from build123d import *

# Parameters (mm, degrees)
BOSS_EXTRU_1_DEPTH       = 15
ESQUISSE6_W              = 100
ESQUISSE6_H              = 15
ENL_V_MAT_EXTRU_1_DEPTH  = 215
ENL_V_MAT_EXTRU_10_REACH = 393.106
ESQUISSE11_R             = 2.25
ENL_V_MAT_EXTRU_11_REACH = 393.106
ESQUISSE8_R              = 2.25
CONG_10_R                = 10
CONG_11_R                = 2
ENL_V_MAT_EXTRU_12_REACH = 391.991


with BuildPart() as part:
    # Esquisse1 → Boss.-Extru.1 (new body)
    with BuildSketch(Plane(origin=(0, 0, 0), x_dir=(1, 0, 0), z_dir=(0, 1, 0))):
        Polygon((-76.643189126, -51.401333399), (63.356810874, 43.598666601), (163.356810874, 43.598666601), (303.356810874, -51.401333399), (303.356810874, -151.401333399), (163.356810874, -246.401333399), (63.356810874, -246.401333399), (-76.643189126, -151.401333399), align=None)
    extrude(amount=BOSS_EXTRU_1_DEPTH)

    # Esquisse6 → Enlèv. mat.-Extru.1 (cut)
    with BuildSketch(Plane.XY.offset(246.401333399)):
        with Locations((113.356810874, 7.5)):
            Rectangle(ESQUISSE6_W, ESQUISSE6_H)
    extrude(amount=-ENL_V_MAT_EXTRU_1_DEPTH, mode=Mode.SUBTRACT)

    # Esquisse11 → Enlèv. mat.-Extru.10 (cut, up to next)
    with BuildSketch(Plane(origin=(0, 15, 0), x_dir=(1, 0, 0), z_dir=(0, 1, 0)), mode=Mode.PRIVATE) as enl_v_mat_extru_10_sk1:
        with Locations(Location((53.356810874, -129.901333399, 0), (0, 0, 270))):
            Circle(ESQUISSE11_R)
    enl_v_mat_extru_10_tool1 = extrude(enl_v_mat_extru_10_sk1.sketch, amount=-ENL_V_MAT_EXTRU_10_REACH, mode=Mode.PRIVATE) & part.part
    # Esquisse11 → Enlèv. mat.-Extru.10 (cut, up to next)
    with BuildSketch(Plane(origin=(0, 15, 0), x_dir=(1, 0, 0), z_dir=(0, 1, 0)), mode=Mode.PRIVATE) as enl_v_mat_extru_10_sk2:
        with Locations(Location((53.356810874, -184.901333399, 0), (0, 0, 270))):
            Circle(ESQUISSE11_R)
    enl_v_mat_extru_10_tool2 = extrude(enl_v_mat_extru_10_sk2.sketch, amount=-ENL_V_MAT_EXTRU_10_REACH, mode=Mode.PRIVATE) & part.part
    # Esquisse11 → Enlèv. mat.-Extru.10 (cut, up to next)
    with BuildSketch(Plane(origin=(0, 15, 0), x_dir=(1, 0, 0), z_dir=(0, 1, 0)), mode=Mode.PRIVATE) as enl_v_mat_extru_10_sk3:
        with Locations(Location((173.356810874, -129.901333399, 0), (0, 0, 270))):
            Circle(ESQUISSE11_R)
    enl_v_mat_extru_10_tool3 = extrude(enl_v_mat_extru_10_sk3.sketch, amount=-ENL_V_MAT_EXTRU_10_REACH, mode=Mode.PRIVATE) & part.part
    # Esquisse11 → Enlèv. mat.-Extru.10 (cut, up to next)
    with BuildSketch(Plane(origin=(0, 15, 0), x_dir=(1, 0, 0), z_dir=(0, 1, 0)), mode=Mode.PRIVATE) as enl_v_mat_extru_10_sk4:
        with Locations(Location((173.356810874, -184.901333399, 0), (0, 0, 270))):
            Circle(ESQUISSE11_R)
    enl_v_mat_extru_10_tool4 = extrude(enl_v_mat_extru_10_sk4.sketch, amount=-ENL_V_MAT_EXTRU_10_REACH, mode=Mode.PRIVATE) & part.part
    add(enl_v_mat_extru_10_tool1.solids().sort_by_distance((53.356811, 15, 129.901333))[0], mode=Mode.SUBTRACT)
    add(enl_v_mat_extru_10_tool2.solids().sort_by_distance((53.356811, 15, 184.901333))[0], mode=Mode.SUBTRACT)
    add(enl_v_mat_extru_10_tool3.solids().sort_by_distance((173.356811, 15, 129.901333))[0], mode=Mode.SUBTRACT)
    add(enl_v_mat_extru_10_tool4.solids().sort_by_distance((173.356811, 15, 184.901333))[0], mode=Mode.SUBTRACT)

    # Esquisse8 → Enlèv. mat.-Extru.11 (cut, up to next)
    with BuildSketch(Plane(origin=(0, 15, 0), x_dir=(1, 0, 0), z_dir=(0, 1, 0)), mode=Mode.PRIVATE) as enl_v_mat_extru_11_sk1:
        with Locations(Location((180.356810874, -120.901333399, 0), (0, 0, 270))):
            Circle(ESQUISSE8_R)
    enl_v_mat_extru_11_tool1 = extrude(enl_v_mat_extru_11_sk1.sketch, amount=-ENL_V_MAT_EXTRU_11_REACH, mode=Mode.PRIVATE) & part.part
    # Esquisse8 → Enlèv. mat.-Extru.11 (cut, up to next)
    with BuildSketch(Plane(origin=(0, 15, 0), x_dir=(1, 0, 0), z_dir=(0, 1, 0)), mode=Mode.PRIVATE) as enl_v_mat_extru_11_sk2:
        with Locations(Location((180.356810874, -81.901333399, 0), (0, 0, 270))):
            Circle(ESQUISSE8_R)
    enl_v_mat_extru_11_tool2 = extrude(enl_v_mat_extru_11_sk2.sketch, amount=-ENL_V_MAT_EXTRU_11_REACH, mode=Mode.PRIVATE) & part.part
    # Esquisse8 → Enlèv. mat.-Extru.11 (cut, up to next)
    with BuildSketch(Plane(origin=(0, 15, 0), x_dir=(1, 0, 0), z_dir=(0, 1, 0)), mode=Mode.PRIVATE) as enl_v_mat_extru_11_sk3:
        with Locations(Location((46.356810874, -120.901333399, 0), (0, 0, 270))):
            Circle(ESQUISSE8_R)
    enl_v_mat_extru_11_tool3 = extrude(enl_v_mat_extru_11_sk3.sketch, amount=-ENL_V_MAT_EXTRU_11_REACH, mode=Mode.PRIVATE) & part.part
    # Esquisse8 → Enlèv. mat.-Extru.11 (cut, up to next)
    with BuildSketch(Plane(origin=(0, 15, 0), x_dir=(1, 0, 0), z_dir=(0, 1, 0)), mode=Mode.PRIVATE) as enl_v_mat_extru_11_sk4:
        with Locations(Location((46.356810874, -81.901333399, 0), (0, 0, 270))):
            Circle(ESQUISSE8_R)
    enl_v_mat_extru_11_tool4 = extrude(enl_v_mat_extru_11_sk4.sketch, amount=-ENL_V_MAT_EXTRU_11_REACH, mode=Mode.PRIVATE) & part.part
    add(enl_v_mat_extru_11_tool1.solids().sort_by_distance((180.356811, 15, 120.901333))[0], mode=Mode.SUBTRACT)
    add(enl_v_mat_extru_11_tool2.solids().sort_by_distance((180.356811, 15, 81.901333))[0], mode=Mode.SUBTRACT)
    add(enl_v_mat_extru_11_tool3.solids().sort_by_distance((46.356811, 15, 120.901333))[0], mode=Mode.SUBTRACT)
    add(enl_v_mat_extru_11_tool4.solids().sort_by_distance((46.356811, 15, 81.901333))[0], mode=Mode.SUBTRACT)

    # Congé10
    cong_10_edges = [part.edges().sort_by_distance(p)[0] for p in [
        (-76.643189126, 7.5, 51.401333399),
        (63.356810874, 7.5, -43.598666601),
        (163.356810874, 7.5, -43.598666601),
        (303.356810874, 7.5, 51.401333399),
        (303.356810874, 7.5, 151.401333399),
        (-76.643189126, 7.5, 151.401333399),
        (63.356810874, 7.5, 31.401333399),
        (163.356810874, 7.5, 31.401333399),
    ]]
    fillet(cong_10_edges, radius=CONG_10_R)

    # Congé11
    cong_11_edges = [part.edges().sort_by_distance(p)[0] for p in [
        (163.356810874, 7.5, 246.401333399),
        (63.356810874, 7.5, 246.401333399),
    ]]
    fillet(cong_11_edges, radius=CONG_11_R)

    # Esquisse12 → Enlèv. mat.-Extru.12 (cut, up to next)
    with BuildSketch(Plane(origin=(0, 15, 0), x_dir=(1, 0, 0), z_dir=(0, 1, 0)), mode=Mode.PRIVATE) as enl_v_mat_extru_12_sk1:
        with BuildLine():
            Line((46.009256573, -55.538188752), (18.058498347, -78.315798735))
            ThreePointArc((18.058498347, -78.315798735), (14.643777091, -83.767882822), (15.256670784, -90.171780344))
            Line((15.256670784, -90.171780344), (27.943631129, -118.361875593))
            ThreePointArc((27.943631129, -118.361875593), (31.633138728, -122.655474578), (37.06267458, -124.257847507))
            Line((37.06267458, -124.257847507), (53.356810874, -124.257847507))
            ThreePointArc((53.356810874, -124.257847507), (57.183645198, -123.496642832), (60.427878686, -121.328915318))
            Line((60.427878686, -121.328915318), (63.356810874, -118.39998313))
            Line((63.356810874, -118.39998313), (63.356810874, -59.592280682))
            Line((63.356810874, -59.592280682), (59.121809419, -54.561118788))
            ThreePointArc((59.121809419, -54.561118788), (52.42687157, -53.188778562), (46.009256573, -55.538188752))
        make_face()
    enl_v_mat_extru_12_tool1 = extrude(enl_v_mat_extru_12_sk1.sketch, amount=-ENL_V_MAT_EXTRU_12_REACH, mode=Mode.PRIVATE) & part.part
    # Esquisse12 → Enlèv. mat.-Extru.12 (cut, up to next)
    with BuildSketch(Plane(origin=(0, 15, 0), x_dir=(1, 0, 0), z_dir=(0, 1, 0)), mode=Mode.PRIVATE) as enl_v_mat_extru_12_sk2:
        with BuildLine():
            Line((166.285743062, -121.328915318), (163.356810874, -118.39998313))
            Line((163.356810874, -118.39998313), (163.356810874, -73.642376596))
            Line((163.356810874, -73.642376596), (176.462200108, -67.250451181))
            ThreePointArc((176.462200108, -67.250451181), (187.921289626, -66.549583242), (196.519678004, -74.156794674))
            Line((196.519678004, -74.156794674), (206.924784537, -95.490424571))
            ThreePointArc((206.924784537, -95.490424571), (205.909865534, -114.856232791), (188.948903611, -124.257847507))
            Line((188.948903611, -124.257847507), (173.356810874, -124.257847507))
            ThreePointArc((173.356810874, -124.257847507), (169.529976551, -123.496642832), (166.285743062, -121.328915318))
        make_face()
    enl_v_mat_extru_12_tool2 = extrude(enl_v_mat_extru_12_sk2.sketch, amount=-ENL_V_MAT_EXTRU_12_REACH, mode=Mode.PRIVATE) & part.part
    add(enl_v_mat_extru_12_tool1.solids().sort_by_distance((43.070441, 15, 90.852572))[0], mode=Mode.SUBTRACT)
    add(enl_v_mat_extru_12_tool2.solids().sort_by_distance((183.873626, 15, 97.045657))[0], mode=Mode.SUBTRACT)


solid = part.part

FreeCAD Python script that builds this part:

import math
import FreeCAD as App
import Part
import Sketcher
Q = App.Units.Quantity


def edges_at(feature, points):
    """Names of the edges that pass closest to the given points."""
    edges = feature.Shape.Edges
    near = lambda p: min(range(len(edges)), key=lambda i: edges[i].distToShape(Part.Vertex(*p))[0])
    return sorted({f"Edge{near(p) + 1}" for p in points})

doc = App.newDocument("Part")
params = doc.addObject("Spreadsheet::Sheet", "Params")
for row, (alias, value) in enumerate([
    ("sketch1_width", "100 mm"),
    ("pad1_length", "15 mm"),
    ("sketch2_width", "100 mm"),
    ("sketch2_height", "15 mm"),
    ("pocket1_length", "215 mm"),
    ("sketch3_diameter", "4.5 mm"),
    ("sketch4_diameter", "4.5 mm"),
    ("sketch5_diameter", "4.5 mm"),
    ("sketch6_diameter", "4.5 mm"),
    ("sketch7_diameter", "4.5 mm"),
    ("sketch8_diameter", "4.5 mm"),
    ("sketch9_diameter", "4.5 mm"),
    ("sketch10_diameter", "4.5 mm"),
    ("fillet_radius", "10 mm"),
    ("fillet2_radius", "2 mm"),
    ("sketch11_radius", "10 mm"),
    ("sketch11_radius2", "10 mm"),
    ("sketch11_radius3", "10 mm"),
    ("sketch12_radius", "10 mm"),
    ("sketch12_radius2", "20 mm"),
    ("sketch12_radius3", "15 mm"),
], start=1):
    params.set(f"A{row}", alias)
    params.set(f"B{row}", "=" + value)
    params.setAlias(f"B{row}", alias)

body = doc.addObject("PartDesign::Body", "Body")

sketch1 = body.newObject("Sketcher::SketchObject", "Sketch")
sketch1.AttachmentSupport = (doc.getObject("XZ_Plane"), [""])
sketch1.MapMode = "FlatFace"
sketch1.addGeometry(Part.LineSegment(App.Vector(63, -44, 0), App.Vector(-77, 51, 0)), False)
sketch1.addGeometry(Part.LineSegment(App.Vector(-77, 51, 0), App.Vector(-77, 151, 0)), False)
sketch1.addGeometry(Part.LineSegment(App.Vector(-77, 151, 0), App.Vector(63, 246, 0)), False)
sketch1.addGeometry(Part.LineSegment(App.Vector(63, 246, 0), App.Vector(163, 246, 0)), False)
sketch1.addGeometry(Part.LineSegment(App.Vector(163, 246, 0), App.Vector(303, 151, 0)), False)
sketch1.addGeometry(Part.LineSegment(App.Vector(303, 151, 0), App.Vector(303, 51, 0)), False)
sketch1.addGeometry(Part.LineSegment(App.Vector(303, 51, 0), App.Vector(163, -44, 0)), False)
sketch1.addGeometry(Part.LineSegment(App.Vector(163, -44, 0), App.Vector(63, -44, 0)), False)
sketch1.addConstraint(Sketcher.Constraint("Coincident", 0, 2, 1, 1))
sketch1.addConstraint(Sketcher.Constraint("Coincident", 1, 2, 2, 1))
sketch1.addConstraint(Sketcher.Constraint("Coincident", 2, 2, 3, 1))
sketch1.addConstraint(Sketcher.Constraint("Coincident", 3, 2, 4, 1))
sketch1.addConstraint(Sketcher.Constraint("Coincident", 4, 2, 5, 1))
sketch1.addConstraint(Sketcher.Constraint("Coincident", 5, 2, 6, 1))
sketch1.addConstraint(Sketcher.Constraint("Coincident", 6, 2, 7, 1))
sketch1.addConstraint(Sketcher.Constraint("Coincident", 7, 2, 0, 1))
sketch1.addConstraint(Sketcher.Constraint("Vertical", 1))
sketch1.addConstraint(Sketcher.Constraint("Horizontal", 3))
sketch1.addConstraint(Sketcher.Constraint("Vertical", 5))
sketch1.addConstraint(Sketcher.Constraint("Horizontal", 7))
sketch1.addConstraint(Sketcher.Constraint("Parallel", 0, 4))
sketch1.addConstraint(Sketcher.Constraint("Parallel", 2, 6))
sketch1.addConstraint(Sketcher.Constraint("Horizontal", 1, 2, 4, 2))
sketch1.addConstraint(Sketcher.Constraint("Horizontal", 0, 2, 5, 2))
sketch1.addConstraint(Sketcher.Constraint("Vertical", 3, 2, 6, 2))
sketch1.addConstraint(Sketcher.Constraint("Vertical", 2, 2, 7, 2))
sketch1.addConstraint(Sketcher.Constraint("Equal", 7, 1))
sketch1.addConstraint(Sketcher.Constraint("DistanceX", 3, 1, 3, 2, 100.0))
sketch1.addConstraint(Sketcher.Constraint("DistanceX", 1, 2, 2, 2, 140.0))
sketch1.addConstraint(Sketcher.Constraint("DistanceY", 1, 2, 2, 2, 95.0))
sketch1.addConstraint(Sketcher.Constraint("DistanceX", 0, 2, -1, 1, 76.643189))
sketch1.addConstraint(Sketcher.Constraint("DistanceY", -1, 1, 0, 2, 51.401333))
sketch1.setExpression("Constraints[19]", "Params.sketch1_width")
pad1 = body.newObject("PartDesign::Pad", "Pad")
pad1.Profile = sketch1
pad1.setExpression("Length", "Params.pad1_length")
pad1.Reversed = True

sketch2 = body.newObject("Sketcher::SketchObject", "Sketch001")
sketch2.AttachmentSupport = (doc.getObject("XY_Plane"), [""])
sketch2.MapMode = "FlatFace"
sketch2.AttachmentOffset = App.Placement(App.Vector(0, 0, 246.401333), App.Rotation())
sketch2.addGeometry(Part.LineSegment(App.Vector(63, 15, 0), App.Vector(63, 0, 0)), False)
sketch2.addGeometry(Part.LineSegment(App.Vector(63, 0, 0), App.Vector(163, 0, 0)), False)
sketch2.addGeometry(Part.LineSegment(App.Vector(163, 0, 0), App.Vector(163, 15, 0)), False)
sketch2.addGeometry(Part.LineSegment(App.Vector(163, 15, 0), App.Vector(63, 15, 0)), False)
sketch2.addConstraint(Sketcher.Constraint("Coincident", 0, 2, 1, 1))
sketch2.addConstraint(Sketcher.Constraint("Coincident", 1, 2, 2, 1))
sketch2.addConstraint(Sketcher.Constraint("Coincident", 2, 2, 3, 1))
sketch2.addConstraint(Sketcher.Constraint("Coincident", 3, 2, 0, 1))
sketch2.addConstraint(Sketcher.Constraint("Vertical", 0))
sketch2.addConstraint(Sketcher.Constraint("Horizontal", 1))
sketch2.addConstraint(Sketcher.Constraint("Vertical", 2))
sketch2.addConstraint(Sketcher.Constraint("Horizontal", 3))
sketch2.addConstraint(Sketcher.Constraint("PointOnObject", 0, 2, -1))
sketch2.addConstraint(Sketcher.Constraint("DistanceX", 1, 1, 1, 2, 100.0))
sketch2.addConstraint(Sketcher.Constraint("DistanceY", 0, 2, 0, 1, 15.0))
sketch2.addConstraint(Sketcher.Constraint("DistanceX", -1, 1, 0, 2, 63.356811))
sketch2.setExpression("Constraints[9]", "Params.sketch2_width")
sketch2.setExpression("Constraints[10]", "Params.sketch2_height")
pocket1 = body.newObject("PartDesign::Pocket", "Pocket")
pocket1.Profile = sketch2
pocket1.setExpression("Length", "Params.pocket1_length")

sketch3 = body.newObject("Sketcher::SketchObject", "Sketch002")
sketch3.AttachmentSupport = (doc.getObject("XZ_Plane"), [""])
sketch3.MapMode = "FlatFace"
sketch3.AttachmentOffset = App.Placement(App.Vector(0, 0, -15), App.Rotation())
sketch3.addGeometry(Part.Circle(App.Vector(53.4, 129.9, 0), App.Vector(0, 0, 1), 2.2), False)
sketch3.addConstraint(Sketcher.Constraint("Diameter", 0, 4.5))
sketch3.addConstraint(Sketcher.Constraint("DistanceX", -1, 1, 0, 3, 53.356811))
sketch3.addConstraint(Sketcher.Constraint("DistanceY", -1, 1, 0, 3, 129.901333))
sketch3.setExpression("Constraints[0]", "Params.sketch3_diameter")
pocket2 = body.newObject("PartDesign::Pocket", "Pocket001")
pocket2.Profile = sketch3
pocket2.Type = "UpToFirst"
pocket2.Reversed = True

sketch4 = body.newObject("Sketcher::SketchObject", "Sketch003")
sketch4.AttachmentSupport = (doc.getObject("XZ_Plane"), [""])
sketch4.MapMode = "FlatFace"
sketch4.AttachmentOffset = App.Placement(App.Vector(0, 0, -15), App.Rotation())
sketch4.addGeometry(Part.Circle(App.Vector(53.4, 184.9, 0), App.Vector(0, 0, 1), 2.2), False)
sketch4.addConstraint(Sketcher.Constraint("Diameter", 0, 4.5))
sketch4.addConstraint(Sketcher.Constraint("DistanceX", -1, 1, 0, 3, 53.356811))
sketch4.addConstraint(Sketcher.Constraint("DistanceY", -1, 1, 0, 3, 184.901333))
sketch4.setExpression("Constraints[0]", "Params.sketch4_diameter")
pocket3 = body.newObject("PartDesign::Pocket", "Pocket002")
pocket3.Profile = sketch4
pocket3.Type = "UpToFirst"
pocket3.Reversed = True

sketch5 = body.newObject("Sketcher::SketchObject", "Sketch004")
sketch5.AttachmentSupport = (doc.getObject("XZ_Plane"), [""])
sketch5.MapMode = "FlatFace"
sketch5.AttachmentOffset = App.Placement(App.Vector(0, 0, -15), App.Rotation())
sketch5.addGeometry(Part.Circle(App.Vector(173.4, 129.9, 0), App.Vector(0, 0, 1), 2.2), False)
sketch5.addConstraint(Sketcher.Constraint("Diameter", 0, 4.5))
sketch5.addConstraint(Sketcher.Constraint("DistanceX", -1, 1, 0, 3, 173.356811))
sketch5.addConstraint(Sketcher.Constraint("DistanceY", -1, 1, 0, 3, 129.901333))
sketch5.setExpression("Constraints[0]", "Params.sketch5_diameter")
pocket4 = body.newObject("PartDesign::Pocket", "Pocket003")
pocket4.Profile = sketch5
pocket4.Type = "UpToFirst"
pocket4.Reversed = True

sketch6 = body.newObject("Sketcher::SketchObject", "Sketch005")
sketch6.AttachmentSupport = (doc.getObject("XZ_Plane"), [""])
sketch6.MapMode = "FlatFace"
sketch6.AttachmentOffset = App.Placement(App.Vector(0, 0, -15), App.Rotation())
sketch6.addGeometry(Part.Circle(App.Vector(173.4, 184.9, 0), App.Vector(0, 0, 1), 2.2), False)
sketch6.addConstraint(Sketcher.Constraint("Diameter", 0, 4.5))
sketch6.addConstraint(Sketcher.Constraint("DistanceX", -1, 1, 0, 3, 173.356811))
sketch6.addConstraint(Sketcher.Constraint("DistanceY", -1, 1, 0, 3, 184.901333))
sketch6.setExpression("Constraints[0]", "Params.sketch6_diameter")
pocket5 = body.newObject("PartDesign::Pocket", "Pocket004")
pocket5.Profile = sketch6
pocket5.Type = "UpToFirst"
pocket5.Reversed = True

sketch7 = body.newObject("Sketcher::SketchObject", "Sketch006")
sketch7.AttachmentSupport = (doc.getObject("XZ_Plane"), [""])
sketch7.MapMode = "FlatFace"
sketch7.AttachmentOffset = App.Placement(App.Vector(0, 0, -15), App.Rotation())
sketch7.addGeometry(Part.Circle(App.Vector(180.4, 120.9, 0), App.Vector(0, 0, 1), 2.2), False)
sketch7.addConstraint(Sketcher.Constraint("Diameter", 0, 4.5))
sketch7.addConstraint(Sketcher.Constraint("DistanceX", -1, 1, 0, 3, 180.356811))
sketch7.addConstraint(Sketcher.Constraint("DistanceY", -1, 1, 0, 3, 120.901333))
sketch7.setExpression("Constraints[0]", "Params.sketch7_diameter")
pocket6 = body.newObject("PartDesign::Pocket", "Pocket005")
pocket6.Profile = sketch7
pocket6.Type = "UpToFirst"
pocket6.Reversed = True

sketch8 = body.newObject("Sketcher::SketchObject", "Sketch007")
sketch8.AttachmentSupport = (doc.getObject("XZ_Plane"), [""])
sketch8.MapMode = "FlatFace"
sketch8.AttachmentOffset = App.Placement(App.Vector(0, 0, -15), App.Rotation())
sketch8.addGeometry(Part.Circle(App.Vector(180.4, 81.9, 0), App.Vector(0, 0, 1), 2.2), False)
sketch8.addConstraint(Sketcher.Constraint("Diameter", 0, 4.5))
sketch8.addConstraint(Sketcher.Constraint("DistanceX", -1, 1, 0, 3, 180.356811))
sketch8.addConstraint(Sketcher.Constraint("DistanceY", -1, 1, 0, 3, 81.901333))
sketch8.setExpression("Constraints[0]", "Params.sketch8_diameter")
pocket7 = body.newObject("PartDesign::Pocket", "Pocket006")
pocket7.Profile = sketch8
pocket7.Type = "UpToFirst"
pocket7.Reversed = True

sketch9 = body.newObject("Sketcher::SketchObject", "Sketch008")
sketch9.AttachmentSupport = (doc.getObject("XZ_Plane"), [""])
sketch9.MapMode = "FlatFace"
sketch9.AttachmentOffset = App.Placement(App.Vector(0, 0, -15), App.Rotation())
sketch9.addGeometry(Part.Circle(App.Vector(46.4, 120.9, 0), App.Vector(0, 0, 1), 2.2), False)
sketch9.addConstraint(Sketcher.Constraint("Diameter", 0, 4.5))
sketch9.addConstraint(Sketcher.Constraint("DistanceX", -1, 1, 0, 3, 46.356811))
sketch9.addConstraint(Sketcher.Constraint("DistanceY", -1, 1, 0, 3, 120.901333))
sketch9.setExpression("Constraints[0]", "Params.sketch9_diameter")
pocket8 = body.newObject("PartDesign::Pocket", "Pocket007")
pocket8.Profile = sketch9
pocket8.Type = "UpToFirst"
pocket8.Reversed = True

sketch10 = body.newObject("Sketcher::SketchObject", "Sketch009")
sketch10.AttachmentSupport = (doc.getObject("XZ_Plane"), [""])
sketch10.MapMode = "FlatFace"
sketch10.AttachmentOffset = App.Placement(App.Vector(0, 0, -15), App.Rotation())
sketch10.addGeometry(Part.Circle(App.Vector(46.4, 81.9, 0), App.Vector(0, 0, 1), 2.2), False)
sketch10.addConstraint(Sketcher.Constraint("Diameter", 0, 4.5))
sketch10.addConstraint(Sketcher.Constraint("DistanceX", -1, 1, 0, 3, 46.356811))
sketch10.addConstraint(Sketcher.Constraint("DistanceY", -1, 1, 0, 3, 81.901333))
sketch10.setExpression("Constraints[0]", "Params.sketch10_diameter")
pocket9 = body.newObject("PartDesign::Pocket", "Pocket008")
pocket9.Profile = sketch10
pocket9.Type = "UpToFirst"
pocket9.Reversed = True
doc.recompute()

fillet = body.newObject("PartDesign::Fillet", "Fillet")
fillet.Base = (pocket9, edges_at(pocket9, [
    (-76.643, 7.5, 51.401),
    (63.357, 7.5, -43.599),
    (163.357, 7.5, -43.599),
    (303.357, 7.5, 51.401),
    (303.357, 7.5, 151.401),
    (-76.643, 7.5, 151.401),
    (63.357, 7.5, 31.401),
    (163.357, 7.5, 31.401),
]))
fillet.setExpression("Radius", "Params.fillet_radius")
doc.recompute()

fillet2 = body.newObject("PartDesign::Fillet", "Fillet001")
fillet2.Base = (fillet, edges_at(fillet, [(163.357, 7.5, 246.401), (63.357, 7.5, 246.401)]))
fillet2.setExpression("Radius", "Params.fillet2_radius")

sketch11 = body.newObject("Sketcher::SketchObject", "Sketch010")
sketch11.AttachmentSupport = (doc.getObject("XZ_Plane"), [""])
sketch11.MapMode = "FlatFace"
sketch11.AttachmentOffset = App.Placement(App.Vector(0, 0, -15), App.Rotation())
sketch11.addGeometry(Part.LineSegment(App.Vector(46.009257, 55.538189, 0), App.Vector(18.058498, 78.315799, 0)), False)
sketch11.addGeometry(Part.ArcOfCircle(Part.Circle(App.Vector(24.375714, 86.067752, 0), App.Vector(0, 0, 1), 10), math.radians(155.769859), math.radians(230.822747)), False)
sketch11.addGeometry(Part.LineSegment(App.Vector(15.256671, 90.17178, 0), App.Vector(27.943631, 118.361876, 0)), False)
sketch11.addGeometry(Part.ArcOfCircle(Part.Circle(App.Vector(37.062675, 114.257848, 0), App.Vector(0, 0, 1), 10), math.radians(90), math.radians(155.769859)), False)
sketch11.addGeometry(Part.LineSegment(App.Vector(37.062675, 124.257848, 0), App.Vector(53.356811, 124.257848, 0)), False)
sketch11.addGeometry(Part.ArcOfCircle(Part.Circle(App.Vector(53.356811, 114.257848, 0), App.Vector(0, 0, 1), 10), math.radians(45), math.radians(90)), False)
sketch11.addGeometry(Part.LineSegment(App.Vector(60.427879, 121.328915, 0), App.Vector(63.356811, 118.399983, 0)), False)
sketch11.addGeometry(Part.LineSegment(App.Vector(63.356811, 118.399983, 0), App.Vector(63.356811, 59.592281, 0)), False)
sketch11.addGeometry(Part.LineSegment(App.Vector(63.356811, 59.592281, 0), App.Vector(59.121809, 54.561119, 0)), False)
sketch11.addGeometry(Part.ArcOfCircle(Part.Circle(App.Vector(53.356811, 65.668825, 0), App.Vector(0, 0, 1), 12.514645), math.radians(-125.952651), math.radians(-62.570284)), False)
sketch11.addConstraint(Sketcher.Constraint("Coincident", 0, 2, 1, 2))
sketch11.addConstraint(Sketcher.Constraint("Coincident", 1, 1, 2, 1))
sketch11.addConstraint(Sketcher.Constraint("Coincident", 2, 2, 3, 2))
sketch11.addConstraint(Sketcher.Constraint("Coincident", 3, 1, 4, 1))
sketch11.addConstraint(Sketcher.Constraint("Coincident", 4, 2, 5, 2))
sketch11.addConstraint(Sketcher.Constraint("Coincident", 5, 1, 6, 1))
sketch11.addConstraint(Sketcher.Constraint("Coincident", 6, 2, 7, 1))
sketch11.addConstraint(Sketcher.Constraint("Coincident", 7, 2, 8, 1))
sketch11.addConstraint(Sketcher.Constraint("Coincident", 8, 2, 9, 2))
sketch11.addConstraint(Sketcher.Constraint("Coincident", 9, 1, 0, 1))
sketch11.addConstraint(Sketcher.Constraint("Horizontal", 4))
sketch11.addConstraint(Sketcher.Constraint("Vertical", 7))
sketch11.addConstraint(Sketcher.Constraint("Radius", 1, 10.0))
sketch11.addConstraint(Sketcher.Constraint("Radius", 3, 10.0))
sketch11.addConstraint(Sketcher.Constraint("Radius", 5, 10.0))
sketch11.addConstraint(Sketcher.Constraint("DistanceX", 5, 3, 6, 2, 10.0))
sketch11.addConstraint(Sketcher.Constraint("DistanceX", 4, 2, 6, 2, 10.0))
sketch11.addConstraint(Sketcher.Constraint("DistanceX", 9, 3, 7, 2, 10.0))
sketch11.addConstraint(Sketcher.Constraint("Radius", 9, 12.514645))
sketch11.addConstraint(Sketcher.Constraint("DistanceX", 8, 2, 7, 2, 4.235001))
sketch11.addConstraint(Sketcher.Constraint("DistanceX", -1, 1, 0, 2, 18.058498))
sketch11.addConstraint(Sketcher.Constraint("DistanceY", -1, 1, 0, 2, 78.315799))
sketch11.addConstraint(Sketcher.Constraint("DistanceY", 7, 2, 1, 1, 30.5795))
sketch11.addConstraint(Sketcher.Constraint("Distance", 8, 6.576308))
sketch11.addConstraint(Sketcher.Constraint("DistanceX", 4, 1, 4, 2, 16.294136))
sketch11.addConstraint(Sketcher.Constraint("DistanceY", 7, 2, 7, 1, 58.807702))
sketch11.addConstraint(Sketcher.Constraint("DistanceX", -1, 1, 5, 3, 53.356811))
sketch11.addConstraint(Sketcher.Constraint("DistanceX", -1, 1, 1, 1, 15.256671))
sketch11.addConstraint(Sketcher.Constraint("DistanceY", -1, 1, 1, 1, 90.17178))
sketch11.addConstraint(Sketcher.Constraint("DistanceX", -1, 1, 2, 2, 27.943631))
sketch11.addConstraint(Sketcher.Constraint("DistanceX", -1, 1, 5, 1, 60.427879))
sketch11.addConstraint(Sketcher.Constraint("DistanceY", -1, 1, 9, 1, 55.538189))
sketch11.addConstraint(Sketcher.Constraint("DistanceX", 1, 3, 3, 3, 12.68696))
sketch11.addConstraint(Sketcher.Constraint("DistanceY", 0, 2, 3, 3, 35.942049))
sketch11.setExpression("Constraints[12]", "Params.sketch11_radius")
sketch11.setExpression("Constraints[13]", "Params.sketch11_radius2")
sketch11.setExpression("Constraints[14]", "Params.sketch11_radius3")
pocket10 = body.newObject("PartDesign::Pocket", "Pocket009")
pocket10.Profile = sketch11
pocket10.Type = "UpToFirst"
pocket10.Reversed = True

sketch12 = body.newObject("Sketcher::SketchObject", "Sketch011")
sketch12.AttachmentSupport = (doc.getObject("XZ_Plane"), [""])
sketch12.MapMode = "FlatFace"
sketch12.AttachmentOffset = App.Placement(App.Vector(0, 0, -15), App.Rotation())
sketch12.addGeometry(Part.LineSegment(App.Vector(163.4, 118.4, 0), App.Vector(166.3, 121.3, 0)), False)
sketch12.addGeometry(Part.ArcOfCircle(Part.Circle(App.Vector(173.4, 114.3, 0), App.Vector(0, 0, 1), 10), math.radians(90), math.radians(135)), False)
sketch12.addGeometry(Part.LineSegment(App.Vector(173.4, 124.3, 0), App.Vector(188.9, 124.3, 0)), False)
sketch12.addGeometry(Part.ArcOfCircle(Part.Circle(App.Vector(188.9, 104.3, 0), App.Vector(0, 0, 1), 20), math.radians(-26), math.radians(90)), False)
sketch12.addGeometry(Part.LineSegment(App.Vector(206.9, 95.5, 0), App.Vector(196.5, 74.2, 0)), False)
sketch12.addGeometry(Part.ArcOfCircle(Part.Circle(App.Vector(183, 80.7, 0), App.Vector(0, 0, 1), 15), math.radians(-116), math.radians(-26)), False)
sketch12.addGeometry(Part.LineSegment(App.Vector(176.5, 67.3, 0), App.Vector(163.4, 73.6, 0)), False)
sketch12.addGeometry(Part.LineSegment(App.Vector(163.4, 73.6, 0), App.Vector(163.4, 118.4, 0)), False)
sketch12.addConstraint(Sketcher.Constraint("Tangent", 0, 2, 1, 2))
sketch12.addConstraint(Sketcher.Constraint("Tangent", 1, 1, 2, 1))
sketch12.addConstraint(Sketcher.Constraint("Tangent", 2, 2, 3, 2))
sketch12.addConstraint(Sketcher.Constraint("Tangent", 3, 1, 4, 1))
sketch12.addConstraint(Sketcher.Constraint("Tangent", 4, 2, 5, 2))
sketch12.addConstraint(Sketcher.Constraint("Tangent", 5, 1, 6, 1))
sketch12.addConstraint(Sketcher.Constraint("Coincident", 6, 2, 7, 1))
sketch12.addConstraint(Sketcher.Constraint("Coincident", 7, 2, 0, 1))
sketch12.addConstraint(Sketcher.Constraint("Horizontal", 2))
sketch12.addConstraint(Sketcher.Constraint("Vertical", 7))
sketch12.addConstraint(Sketcher.Constraint("Perpendicular", 4, 6))
sketch12.addConstraint(Sketcher.Constraint("Radius", 1, 10.0))
sketch12.addConstraint(Sketcher.Constraint("Radius", 3, 20.0))
sketch12.addConstraint(Sketcher.Constraint("Radius", 5, 15.0))
sketch12.addConstraint(Sketcher.Constraint("Angle", 0, Q("45 deg")))
sketch12.addConstraint(Sketcher.Constraint("Angle", 4, Q("-116 deg")))
sketch12.addConstraint(Sketcher.Constraint("DistanceX", 6, 2, 1, 3, 10.0))
sketch12.addConstraint(Sketcher.Constraint("DistanceX", -1, 1, 5, 1, 176.4622))
sketch12.addConstraint(Sketcher.Constraint("Distance", 4, 23.735838))
sketch12.addConstraint(Sketcher.Constraint("Distance", 6, 14.581081))
sketch12.addConstraint(Sketcher.Constraint("DistanceY", -1, 1, 5, 3, 80.732362))
sketch12.setExpression("Constraints[11]", "Params.sketch12_radius")
sketch12.setExpression("Constraints[12]", "Params.sketch12_radius2")
sketch12.setExpression("Constraints[13]", "Params.sketch12_radius3")
pocket11 = body.newObject("PartDesign::Pocket", "Pocket010")
pocket11.Profile = sketch12
pocket11.Type = "UpToFirst"
pocket11.Reversed = True

doc.recompute()
